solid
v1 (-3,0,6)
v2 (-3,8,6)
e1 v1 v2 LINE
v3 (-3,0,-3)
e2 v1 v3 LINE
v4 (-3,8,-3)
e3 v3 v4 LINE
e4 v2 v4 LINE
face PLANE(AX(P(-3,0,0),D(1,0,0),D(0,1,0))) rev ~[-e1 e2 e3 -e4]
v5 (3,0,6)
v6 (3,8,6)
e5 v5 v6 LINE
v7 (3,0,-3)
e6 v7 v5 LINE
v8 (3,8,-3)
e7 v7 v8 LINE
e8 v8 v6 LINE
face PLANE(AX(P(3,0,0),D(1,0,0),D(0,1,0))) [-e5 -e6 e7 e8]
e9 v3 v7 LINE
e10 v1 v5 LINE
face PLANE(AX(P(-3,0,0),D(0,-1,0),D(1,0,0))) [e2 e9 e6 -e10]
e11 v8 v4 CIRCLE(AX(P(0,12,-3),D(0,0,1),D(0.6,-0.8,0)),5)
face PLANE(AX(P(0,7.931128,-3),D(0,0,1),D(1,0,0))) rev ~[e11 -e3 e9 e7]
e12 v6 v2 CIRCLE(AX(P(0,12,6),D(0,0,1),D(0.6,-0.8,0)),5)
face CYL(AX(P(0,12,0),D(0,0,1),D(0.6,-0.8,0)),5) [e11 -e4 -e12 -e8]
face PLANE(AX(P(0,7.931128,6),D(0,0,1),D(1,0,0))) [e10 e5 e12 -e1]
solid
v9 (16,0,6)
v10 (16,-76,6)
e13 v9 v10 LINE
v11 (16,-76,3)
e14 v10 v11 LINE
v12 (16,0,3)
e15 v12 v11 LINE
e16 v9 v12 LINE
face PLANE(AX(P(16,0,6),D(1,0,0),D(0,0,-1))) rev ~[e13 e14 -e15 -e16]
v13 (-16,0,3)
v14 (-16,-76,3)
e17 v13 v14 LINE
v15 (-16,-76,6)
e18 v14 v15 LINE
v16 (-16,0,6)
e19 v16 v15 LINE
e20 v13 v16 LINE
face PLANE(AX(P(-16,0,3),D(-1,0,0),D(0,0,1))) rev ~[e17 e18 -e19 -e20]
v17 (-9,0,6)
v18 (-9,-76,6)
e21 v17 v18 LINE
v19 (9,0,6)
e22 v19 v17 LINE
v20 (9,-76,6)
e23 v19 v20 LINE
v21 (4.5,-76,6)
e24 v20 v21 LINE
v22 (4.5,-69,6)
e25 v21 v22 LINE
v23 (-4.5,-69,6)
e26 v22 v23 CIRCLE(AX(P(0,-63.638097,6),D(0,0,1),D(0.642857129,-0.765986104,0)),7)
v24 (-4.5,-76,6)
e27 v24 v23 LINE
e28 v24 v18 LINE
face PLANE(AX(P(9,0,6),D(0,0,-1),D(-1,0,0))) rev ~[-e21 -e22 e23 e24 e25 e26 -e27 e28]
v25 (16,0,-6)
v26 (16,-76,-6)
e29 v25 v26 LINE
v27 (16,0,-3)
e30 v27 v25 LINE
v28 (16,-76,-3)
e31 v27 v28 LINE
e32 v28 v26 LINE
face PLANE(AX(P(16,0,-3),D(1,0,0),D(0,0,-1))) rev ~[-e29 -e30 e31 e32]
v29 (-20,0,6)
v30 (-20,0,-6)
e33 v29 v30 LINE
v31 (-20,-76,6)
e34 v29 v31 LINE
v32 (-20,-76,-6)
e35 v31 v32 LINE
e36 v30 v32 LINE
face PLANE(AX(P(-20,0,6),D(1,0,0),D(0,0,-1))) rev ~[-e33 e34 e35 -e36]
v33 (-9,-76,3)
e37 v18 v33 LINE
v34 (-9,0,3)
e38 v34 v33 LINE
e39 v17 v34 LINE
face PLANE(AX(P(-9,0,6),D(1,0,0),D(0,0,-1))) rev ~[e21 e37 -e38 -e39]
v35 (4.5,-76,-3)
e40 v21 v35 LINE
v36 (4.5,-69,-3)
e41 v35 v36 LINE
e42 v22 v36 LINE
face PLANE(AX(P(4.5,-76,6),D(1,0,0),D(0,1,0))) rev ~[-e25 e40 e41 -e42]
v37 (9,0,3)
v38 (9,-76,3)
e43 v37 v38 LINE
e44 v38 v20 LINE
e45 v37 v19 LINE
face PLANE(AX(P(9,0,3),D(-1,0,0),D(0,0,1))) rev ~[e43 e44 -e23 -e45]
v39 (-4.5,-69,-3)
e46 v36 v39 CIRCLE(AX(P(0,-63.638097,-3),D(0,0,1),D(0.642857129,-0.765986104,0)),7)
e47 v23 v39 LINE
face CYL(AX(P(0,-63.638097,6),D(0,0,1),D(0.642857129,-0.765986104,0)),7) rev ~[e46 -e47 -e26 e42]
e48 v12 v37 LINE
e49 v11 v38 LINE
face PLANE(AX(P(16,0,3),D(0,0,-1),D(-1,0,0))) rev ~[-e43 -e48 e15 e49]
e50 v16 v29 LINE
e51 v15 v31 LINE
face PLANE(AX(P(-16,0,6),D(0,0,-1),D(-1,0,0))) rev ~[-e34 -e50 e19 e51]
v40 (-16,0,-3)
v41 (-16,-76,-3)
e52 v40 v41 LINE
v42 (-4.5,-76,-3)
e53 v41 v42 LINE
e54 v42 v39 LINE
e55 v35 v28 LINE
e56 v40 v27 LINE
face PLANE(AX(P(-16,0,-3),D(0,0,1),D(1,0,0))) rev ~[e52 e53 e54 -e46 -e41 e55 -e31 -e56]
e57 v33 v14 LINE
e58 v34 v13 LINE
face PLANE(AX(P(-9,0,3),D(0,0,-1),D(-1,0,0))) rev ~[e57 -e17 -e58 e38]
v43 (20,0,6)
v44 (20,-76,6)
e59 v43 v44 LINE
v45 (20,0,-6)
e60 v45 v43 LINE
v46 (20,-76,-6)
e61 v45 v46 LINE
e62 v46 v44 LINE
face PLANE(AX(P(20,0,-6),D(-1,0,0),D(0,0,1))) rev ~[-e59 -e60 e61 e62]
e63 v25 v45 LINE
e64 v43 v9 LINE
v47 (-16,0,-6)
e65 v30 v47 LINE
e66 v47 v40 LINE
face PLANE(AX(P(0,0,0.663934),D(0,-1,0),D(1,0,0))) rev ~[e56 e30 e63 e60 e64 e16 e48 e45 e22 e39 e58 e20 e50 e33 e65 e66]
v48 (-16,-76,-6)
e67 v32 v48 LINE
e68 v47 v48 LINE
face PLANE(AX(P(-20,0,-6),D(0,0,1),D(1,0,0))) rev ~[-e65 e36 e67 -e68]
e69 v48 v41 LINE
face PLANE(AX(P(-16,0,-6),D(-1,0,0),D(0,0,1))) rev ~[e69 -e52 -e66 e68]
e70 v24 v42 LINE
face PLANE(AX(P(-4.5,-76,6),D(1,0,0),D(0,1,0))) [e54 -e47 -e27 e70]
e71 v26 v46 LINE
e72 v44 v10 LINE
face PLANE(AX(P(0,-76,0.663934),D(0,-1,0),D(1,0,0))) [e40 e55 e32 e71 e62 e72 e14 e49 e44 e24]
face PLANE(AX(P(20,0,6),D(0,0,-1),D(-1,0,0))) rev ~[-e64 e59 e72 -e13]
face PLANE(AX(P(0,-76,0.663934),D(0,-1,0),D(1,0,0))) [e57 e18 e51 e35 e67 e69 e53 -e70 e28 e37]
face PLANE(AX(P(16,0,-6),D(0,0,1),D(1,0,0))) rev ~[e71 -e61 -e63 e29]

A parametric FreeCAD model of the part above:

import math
import FreeCAD as App
import Part
import Sketcher
from FreeCAD import Vector
Q = App.Units.Quantity

doc = App.newDocument("Part")
body = doc.addObject("PartDesign::Body", "Body")

# Sketch on XZ plane
sketch1 = body.newObject("Sketcher::SketchObject", "Sketch")
sketch1.AttachmentSupport = (doc.getObject("XZ_Plane"), [""])
sketch1.MapMode = "FlatFace"
sketch1.addGeometry([
    Part.LineSegment(Vector(-20, 6, 0), Vector(-20, -6, 0)),  # 0
    Part.LineSegment(Vector(-20, -6, 0), Vector(-16, -6, 0)),  # 1
    Part.LineSegment(Vector(-16, -6, 0), Vector(-16, -3, 0)),  # 2
    Part.LineSegment(Vector(-16, -3, 0), Vector(16, -3, 0)),  # 3
    Part.LineSegment(Vector(16, -3, 0), Vector(16, -6, 0)),  # 4
    Part.LineSegment(Vector(16, -6, 0), Vector(20, -6, 0)),  # 5
    Part.LineSegment(Vector(20, -6, 0), Vector(20, 6, 0)),  # 6
    Part.LineSegment(Vector(20, 6, 0), Vector(16, 6, 0)),  # 7
    Part.LineSegment(Vector(16, 6, 0), Vector(16, 3, 0)),  # 8
    Part.LineSegment(Vector(16, 3, 0), Vector(9, 3, 0)),  # 9
    Part.LineSegment(Vector(9, 3, 0), Vector(9, 6, 0)),  # 10
    Part.LineSegment(Vector(9, 6, 0), Vector(-9, 6, 0)),  # 11
    Part.LineSegment(Vector(-9, 6, 0), Vector(-9, 3, 0)),  # 12
    Part.LineSegment(Vector(-9, 3, 0), Vector(-16, 3, 0)),  # 13
    Part.LineSegment(Vector(-16, 3, 0), Vector(-16, 6, 0)),  # 14
    Part.LineSegment(Vector(-16, 6, 0), Vector(-20, 6, 0)),  # 15
], False)
sketch1.addConstraint([
    Sketcher.Constraint("Coincident", 0, 2, 1, 1),
    Sketcher.Constraint("Coincident", 1, 2, 2, 1),
    Sketcher.Constraint("Coincident", 2, 2, 3, 1),
    Sketcher.Constraint("Coincident", 3, 2, 4, 1),
    Sketcher.Constraint("Coincident", 4, 2, 5, 1),
    Sketcher.Constraint("Coincident", 5, 2, 6, 1),
    Sketcher.Constraint("Coincident", 6, 2, 7, 1),
    Sketcher.Constraint("Coincident", 7, 2, 8, 1),
    Sketcher.Constraint("Coincident", 8, 2, 9, 1),
    Sketcher.Constraint("Coincident", 9, 2, 10, 1),
    Sketcher.Constraint("Coincident", 10, 2, 11, 1),
    Sketcher.Constraint("Coincident", 11, 2, 12, 1),
    Sketcher.Constraint("Coincident", 12, 2, 13, 1),
    Sketcher.Constraint("Coincident", 13, 2, 14, 1),
    Sketcher.Constraint("Coincident", 14, 2, 15, 1),
    Sketcher.Constraint("Coincident", 15, 2, 0, 1),
    Sketcher.Constraint("Vertical", 0),
    Sketcher.Constraint("Horizontal", 1),
    Sketcher.Constraint("Vertical", 2),
    Sketcher.Constraint("Horizontal", 3),
    Sketcher.Constraint("Vertical", 4),
    Sketcher.Constraint("Horizontal", 5),
    Sketcher.Constraint("Vertical", 6),
    Sketcher.Constraint("Horizontal", 7),
    Sketcher.Constraint("Vertical", 8),
    Sketcher.Constraint("Horizontal", 9),
    Sketcher.Constraint("Vertical", 10),
    Sketcher.Constraint("Horizontal", 11),
    Sketcher.Constraint("Vertical", 12),
    Sketcher.Constraint("Horizontal", 13),
    Sketcher.Constraint("Vertical", 14),
    Sketcher.Constraint("Horizontal", 15),
    Sketcher.Constraint("Symmetric", 0, 2, 6, 2, -1, 1),
    Sketcher.Constraint("Symmetric", 2, 2, 8, 2, -1, 1),
    Sketcher.Constraint("Symmetric", 3, 2, 13, 2, -1, 1),
    Sketcher.Constraint("Symmetric", 1, 2, 4, 2, -2),
    Sketcher.Constraint("Horizontal", 7, 2, 10, 2),
    Sketcher.Constraint("Horizontal", 11, 2, 14, 2),
    Sketcher.Constraint("Equal", 9, 13),
    Sketcher.Constraint("DistanceX", 1, 1, 1, 2, Q("4 mm")),
    Sketcher.Constraint("DistanceX", 3, 1, 3, 2, Q("32 mm")),
    Sketcher.Constraint("DistanceX", 9, 2, 9, 1, Q("7 mm")),
    Sketcher.Constraint("DistanceY", 0, 2, 0, 1, Q("12 mm")),
    Sketcher.Constraint("DistanceY", 2, 1, 2, 2, Q("3 mm")),
])
pad1 = body.newObject("PartDesign::Pad", "Pad")
pad1.Profile = sketch1
pad1.Length = 76

# Sketch on XY plane
sketch2 = body.newObject("Sketcher::SketchObject", "Sketch001")
sketch2.AttachmentSupport = (doc.getObject("XY_Plane"), [""])
sketch2.MapMode = "FlatFace"
sketch2.AttachmentOffset = App.Placement(Vector(0, 0, 6), App.Rotation())
sketch2.addGeometry([
    Part.LineSegment(Vector(-4, -76, 0), Vector(4, -76, 0)),
    Part.LineSegment(Vector(4, -76, 0), Vector(4, -69, 0)),
    Part.ArcOfCircle(Part.Circle(Vector(0, -64, 0), Vector(0, 0, 1), 7), math.radians(-50), math.radians(230)),
    Part.LineSegment(Vector(-4, -69, 0), Vector(-4, -76, 0)),
], False)
sketch2.addConstraint([
    Sketcher.Constraint("Coincident", 0, 2, 1, 1),
    Sketcher.Constraint("Coincident", 1, 2, 2, 1),
    Sketcher.Constraint("Coincident", 2, 2, 3, 1),
    Sketcher.Constraint("Coincident", 3, 2, 0, 1),
    Sketcher.Constraint("Horizontal", 0),
    Sketcher.Constraint("Vertical", 1),
    Sketcher.Constraint("Vertical", 3),
    Sketcher.Constraint("Symmetric", 1, 2, 2, 2, -2),
    Sketcher.Constraint("Radius", 2, Q("7 mm")),
    Sketcher.Constraint("DistanceX", 0, 1, 0, 2, Q("9 mm")),
    Sketcher.Constraint("DistanceY", 1, 1, 1, 2, Q("7 mm")),
    Sketcher.Constraint("DistanceY", 0, 2, -1, 1, Q("76 mm")),
])
pocket1 = body.newObject("PartDesign::Pocket", "Pocket")
pocket1.Profile = sketch2
pocket1.Type = "ThroughAll"
body2 = doc.addObject("PartDesign::Body", "Body001")

# Sketch on XY plane
sketch3 = body2.newObject("Sketcher::SketchObject", "Sketch002")
sketch3.AttachmentSupport = (doc.getObject("XY_Plane001"), [""])
sketch3.MapMode = "FlatFace"
sketch3.addGeometry([
    Part.LineSegment(Vector(-3, 0, 0), Vector(3, 0, 0)),
    Part.LineSegment(Vector(3, 0, 0), Vector(3, 8, 0)),
    Part.ArcOfCircle(Part.Circle(Vector(0, 12, 0), Vector(0, 0, 1), 5), math.radians(-53), math.radians(233)),
    Part.LineSegment(Vector(-3, 8, 0), Vector(-3, 0, 0)),
], False)
sketch3.addConstraint([
    Sketcher.Constraint("Coincident", 0, 2, 1, 1),
    Sketcher.Constraint("Coincident", 1, 2, 2, 1),
    Sketcher.Constraint("Coincident", 2, 2, 3, 1),
    Sketcher.Constraint("Coincident", 3, 2, 0, 1),
    Sketcher.Constraint("Horizontal", 0),
    Sketcher.Constraint("Vertical", 1),
    Sketcher.Constraint("Vertical", 3),
    Sketcher.Constraint("Symmetric", 0, 2, 3, 2, -1, 1),
    Sketcher.Constraint("PointOnObject", 2, 3, -2),
    Sketcher.Constraint("Radius", 2, Q("5 mm")),
    Sketcher.Constraint("DistanceX", 0, 1, 0, 2, Q("6 mm")),
    Sketcher.Constraint("DistanceY", 1, 1, 1, 2, Q("8 mm")),
])
pad2 = body2.newObject("PartDesign::Pad", "Pad001")
pad2.Profile = sketch3
pad2.Type = "TwoLengths"
pad2.Length = 6
pad2.Length2 = 3

doc.recompute()
